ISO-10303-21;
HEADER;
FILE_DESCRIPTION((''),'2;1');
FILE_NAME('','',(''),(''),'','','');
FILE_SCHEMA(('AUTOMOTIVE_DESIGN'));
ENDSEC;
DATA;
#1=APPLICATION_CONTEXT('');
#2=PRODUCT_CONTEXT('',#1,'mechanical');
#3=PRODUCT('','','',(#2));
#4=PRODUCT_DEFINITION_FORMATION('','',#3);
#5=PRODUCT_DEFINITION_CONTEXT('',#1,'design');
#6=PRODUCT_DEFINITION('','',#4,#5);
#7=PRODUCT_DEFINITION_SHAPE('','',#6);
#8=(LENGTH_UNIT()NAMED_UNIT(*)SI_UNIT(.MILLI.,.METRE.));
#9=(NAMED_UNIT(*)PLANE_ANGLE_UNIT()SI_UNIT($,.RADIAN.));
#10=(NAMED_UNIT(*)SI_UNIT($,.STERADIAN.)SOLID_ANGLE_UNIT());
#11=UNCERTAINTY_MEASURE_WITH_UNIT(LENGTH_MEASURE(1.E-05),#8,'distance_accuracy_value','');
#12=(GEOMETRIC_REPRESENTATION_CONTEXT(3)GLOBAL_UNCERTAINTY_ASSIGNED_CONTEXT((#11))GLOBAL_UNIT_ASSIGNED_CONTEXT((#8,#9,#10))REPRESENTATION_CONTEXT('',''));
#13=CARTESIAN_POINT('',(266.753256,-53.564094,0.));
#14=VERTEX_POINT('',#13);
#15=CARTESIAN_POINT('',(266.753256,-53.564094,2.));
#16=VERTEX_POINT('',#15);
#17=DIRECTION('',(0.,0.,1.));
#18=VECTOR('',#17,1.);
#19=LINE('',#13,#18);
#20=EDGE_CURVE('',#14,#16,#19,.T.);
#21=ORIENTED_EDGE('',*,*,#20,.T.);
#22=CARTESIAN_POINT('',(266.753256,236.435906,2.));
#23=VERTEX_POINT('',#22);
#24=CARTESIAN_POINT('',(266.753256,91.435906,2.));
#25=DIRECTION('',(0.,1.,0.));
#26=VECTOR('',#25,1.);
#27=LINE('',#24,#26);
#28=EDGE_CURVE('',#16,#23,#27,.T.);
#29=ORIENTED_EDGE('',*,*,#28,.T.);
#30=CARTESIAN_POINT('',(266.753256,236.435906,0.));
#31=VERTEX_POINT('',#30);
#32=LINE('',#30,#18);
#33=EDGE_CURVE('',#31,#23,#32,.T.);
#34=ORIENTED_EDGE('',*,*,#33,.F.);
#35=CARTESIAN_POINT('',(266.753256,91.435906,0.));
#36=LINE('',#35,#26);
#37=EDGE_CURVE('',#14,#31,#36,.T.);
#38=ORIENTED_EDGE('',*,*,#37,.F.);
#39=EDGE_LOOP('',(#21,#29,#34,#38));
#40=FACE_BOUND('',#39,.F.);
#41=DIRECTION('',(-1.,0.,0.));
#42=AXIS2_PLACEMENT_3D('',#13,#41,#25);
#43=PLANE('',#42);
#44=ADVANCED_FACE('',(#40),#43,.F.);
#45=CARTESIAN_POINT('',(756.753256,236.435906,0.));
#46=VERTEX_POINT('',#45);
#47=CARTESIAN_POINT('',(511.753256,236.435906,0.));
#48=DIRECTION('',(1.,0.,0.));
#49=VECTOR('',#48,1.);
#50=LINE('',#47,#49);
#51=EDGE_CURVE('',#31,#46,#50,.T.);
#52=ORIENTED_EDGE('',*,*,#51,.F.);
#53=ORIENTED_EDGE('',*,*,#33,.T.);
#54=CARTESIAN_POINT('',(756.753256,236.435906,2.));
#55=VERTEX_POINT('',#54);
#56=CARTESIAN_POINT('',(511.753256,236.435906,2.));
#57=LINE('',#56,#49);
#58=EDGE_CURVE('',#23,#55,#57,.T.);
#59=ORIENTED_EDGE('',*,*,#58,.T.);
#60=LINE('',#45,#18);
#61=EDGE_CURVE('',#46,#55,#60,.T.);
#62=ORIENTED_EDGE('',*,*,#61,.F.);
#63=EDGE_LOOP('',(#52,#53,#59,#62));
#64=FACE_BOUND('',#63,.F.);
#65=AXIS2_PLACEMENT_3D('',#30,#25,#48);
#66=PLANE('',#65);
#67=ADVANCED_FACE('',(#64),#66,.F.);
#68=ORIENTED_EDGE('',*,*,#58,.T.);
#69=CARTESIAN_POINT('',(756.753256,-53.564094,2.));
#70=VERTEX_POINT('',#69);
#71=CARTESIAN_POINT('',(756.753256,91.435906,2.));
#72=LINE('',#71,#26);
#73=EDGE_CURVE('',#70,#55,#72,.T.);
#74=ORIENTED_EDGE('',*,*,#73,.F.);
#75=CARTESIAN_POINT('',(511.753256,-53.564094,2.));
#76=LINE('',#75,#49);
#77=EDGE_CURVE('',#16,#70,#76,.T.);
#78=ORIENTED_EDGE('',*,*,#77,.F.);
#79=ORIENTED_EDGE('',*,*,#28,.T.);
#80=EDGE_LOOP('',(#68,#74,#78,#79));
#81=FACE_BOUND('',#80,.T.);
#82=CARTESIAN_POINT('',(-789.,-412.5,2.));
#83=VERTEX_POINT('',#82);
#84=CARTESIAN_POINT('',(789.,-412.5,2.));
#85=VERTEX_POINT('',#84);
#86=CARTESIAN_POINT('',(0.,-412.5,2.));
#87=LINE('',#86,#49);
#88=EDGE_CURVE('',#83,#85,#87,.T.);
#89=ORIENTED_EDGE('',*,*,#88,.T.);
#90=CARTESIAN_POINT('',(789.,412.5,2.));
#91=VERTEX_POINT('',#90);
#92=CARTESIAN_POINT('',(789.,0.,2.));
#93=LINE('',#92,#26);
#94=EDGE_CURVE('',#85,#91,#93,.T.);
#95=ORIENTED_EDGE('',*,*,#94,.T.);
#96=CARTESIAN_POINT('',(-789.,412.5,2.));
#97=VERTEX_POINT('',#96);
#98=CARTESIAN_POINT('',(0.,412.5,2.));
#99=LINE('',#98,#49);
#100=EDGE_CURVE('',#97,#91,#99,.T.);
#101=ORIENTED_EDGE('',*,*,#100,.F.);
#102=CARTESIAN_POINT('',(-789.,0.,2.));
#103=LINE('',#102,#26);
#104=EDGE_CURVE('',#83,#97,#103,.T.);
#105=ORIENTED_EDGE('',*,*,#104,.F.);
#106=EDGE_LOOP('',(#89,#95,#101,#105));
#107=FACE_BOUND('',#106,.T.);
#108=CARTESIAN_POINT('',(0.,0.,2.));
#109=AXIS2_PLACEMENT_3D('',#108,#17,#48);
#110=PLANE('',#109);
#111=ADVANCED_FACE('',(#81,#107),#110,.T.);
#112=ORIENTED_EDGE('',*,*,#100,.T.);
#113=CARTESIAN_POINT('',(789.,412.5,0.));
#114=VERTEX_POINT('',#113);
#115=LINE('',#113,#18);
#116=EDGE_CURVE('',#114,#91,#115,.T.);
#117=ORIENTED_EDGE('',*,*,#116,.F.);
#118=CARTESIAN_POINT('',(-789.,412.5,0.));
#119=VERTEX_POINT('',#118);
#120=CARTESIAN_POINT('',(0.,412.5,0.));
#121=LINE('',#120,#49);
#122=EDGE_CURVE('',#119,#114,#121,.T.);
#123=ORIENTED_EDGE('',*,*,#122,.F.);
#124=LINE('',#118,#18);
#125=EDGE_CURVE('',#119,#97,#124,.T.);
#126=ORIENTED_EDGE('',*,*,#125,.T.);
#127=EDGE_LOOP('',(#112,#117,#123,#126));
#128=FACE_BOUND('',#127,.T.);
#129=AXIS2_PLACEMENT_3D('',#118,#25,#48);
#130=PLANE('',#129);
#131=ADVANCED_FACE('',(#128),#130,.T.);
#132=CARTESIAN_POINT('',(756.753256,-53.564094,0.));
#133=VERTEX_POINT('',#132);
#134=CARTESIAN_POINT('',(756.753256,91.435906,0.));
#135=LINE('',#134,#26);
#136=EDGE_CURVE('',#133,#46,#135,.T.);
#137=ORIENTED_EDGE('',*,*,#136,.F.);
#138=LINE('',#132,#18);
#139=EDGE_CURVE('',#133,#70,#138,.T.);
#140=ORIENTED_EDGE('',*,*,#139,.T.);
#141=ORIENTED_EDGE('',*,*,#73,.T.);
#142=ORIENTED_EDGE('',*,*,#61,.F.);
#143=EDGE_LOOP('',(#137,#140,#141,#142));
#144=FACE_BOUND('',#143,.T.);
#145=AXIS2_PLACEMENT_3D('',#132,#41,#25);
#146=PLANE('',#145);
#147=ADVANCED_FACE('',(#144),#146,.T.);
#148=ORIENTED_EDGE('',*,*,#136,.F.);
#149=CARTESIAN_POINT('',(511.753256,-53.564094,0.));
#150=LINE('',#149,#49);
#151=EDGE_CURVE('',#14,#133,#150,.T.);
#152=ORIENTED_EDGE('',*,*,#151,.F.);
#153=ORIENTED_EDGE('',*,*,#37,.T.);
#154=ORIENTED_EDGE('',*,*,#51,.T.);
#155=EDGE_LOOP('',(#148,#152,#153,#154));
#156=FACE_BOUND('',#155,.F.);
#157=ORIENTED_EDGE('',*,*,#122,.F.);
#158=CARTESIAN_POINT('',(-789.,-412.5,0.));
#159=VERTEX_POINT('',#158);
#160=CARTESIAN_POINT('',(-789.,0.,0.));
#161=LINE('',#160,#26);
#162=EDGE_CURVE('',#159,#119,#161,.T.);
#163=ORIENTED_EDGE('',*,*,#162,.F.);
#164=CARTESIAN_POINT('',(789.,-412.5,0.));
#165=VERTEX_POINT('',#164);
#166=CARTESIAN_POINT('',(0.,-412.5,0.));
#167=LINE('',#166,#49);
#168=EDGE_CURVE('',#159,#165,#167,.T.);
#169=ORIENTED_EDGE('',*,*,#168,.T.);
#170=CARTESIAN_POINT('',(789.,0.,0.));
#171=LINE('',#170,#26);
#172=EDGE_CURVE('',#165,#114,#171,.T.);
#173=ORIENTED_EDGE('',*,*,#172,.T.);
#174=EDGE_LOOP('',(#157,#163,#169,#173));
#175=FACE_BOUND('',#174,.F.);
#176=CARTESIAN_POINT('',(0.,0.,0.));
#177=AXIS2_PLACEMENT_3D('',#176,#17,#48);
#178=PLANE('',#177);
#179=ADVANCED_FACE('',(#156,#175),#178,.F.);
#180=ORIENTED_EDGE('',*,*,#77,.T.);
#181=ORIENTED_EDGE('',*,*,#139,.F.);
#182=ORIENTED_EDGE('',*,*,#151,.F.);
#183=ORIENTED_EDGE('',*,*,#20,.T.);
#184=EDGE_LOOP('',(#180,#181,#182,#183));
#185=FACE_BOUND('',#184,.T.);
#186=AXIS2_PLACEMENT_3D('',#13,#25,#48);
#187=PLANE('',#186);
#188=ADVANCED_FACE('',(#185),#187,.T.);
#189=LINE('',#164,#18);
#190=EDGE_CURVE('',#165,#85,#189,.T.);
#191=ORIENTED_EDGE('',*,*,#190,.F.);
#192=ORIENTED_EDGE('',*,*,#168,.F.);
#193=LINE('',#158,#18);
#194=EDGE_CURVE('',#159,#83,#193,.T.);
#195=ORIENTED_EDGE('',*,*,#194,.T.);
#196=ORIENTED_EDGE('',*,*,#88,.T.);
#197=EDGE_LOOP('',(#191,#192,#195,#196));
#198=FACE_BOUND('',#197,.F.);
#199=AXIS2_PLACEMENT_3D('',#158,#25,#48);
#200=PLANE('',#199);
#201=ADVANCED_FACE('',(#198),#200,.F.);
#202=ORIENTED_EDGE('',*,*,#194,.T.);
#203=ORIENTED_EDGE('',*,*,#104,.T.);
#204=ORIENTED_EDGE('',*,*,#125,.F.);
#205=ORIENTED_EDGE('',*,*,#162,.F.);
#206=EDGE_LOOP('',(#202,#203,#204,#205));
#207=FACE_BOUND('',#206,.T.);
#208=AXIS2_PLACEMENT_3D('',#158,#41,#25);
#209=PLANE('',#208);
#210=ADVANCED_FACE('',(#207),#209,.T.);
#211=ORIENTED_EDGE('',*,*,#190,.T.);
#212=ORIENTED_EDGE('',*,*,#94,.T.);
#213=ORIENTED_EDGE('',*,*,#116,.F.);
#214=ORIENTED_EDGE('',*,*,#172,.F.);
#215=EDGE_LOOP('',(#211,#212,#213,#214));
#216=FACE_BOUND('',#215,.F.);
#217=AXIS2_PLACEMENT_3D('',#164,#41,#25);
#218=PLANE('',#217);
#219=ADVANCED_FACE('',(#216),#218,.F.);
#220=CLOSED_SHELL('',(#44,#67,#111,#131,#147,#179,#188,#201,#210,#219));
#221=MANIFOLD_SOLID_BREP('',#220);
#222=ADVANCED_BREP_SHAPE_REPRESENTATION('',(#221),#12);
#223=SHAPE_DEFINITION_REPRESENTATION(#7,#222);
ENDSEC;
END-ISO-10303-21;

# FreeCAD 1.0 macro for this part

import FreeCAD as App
import Part
import Sketcher

V = App.Vector


def add_polygon(sketch, points):
    """Adds a closed chain of lines whose ends are joined by coincident constraints."""
    first, n = sketch.GeometryCount, len(points)
    for a, b in zip(points, points[1:] + points[:1]):
        sketch.addGeometry(Part.LineSegment(App.Vector(*a, 0), App.Vector(*b, 0)), False)
    for i in range(n):
        sketch.addConstraint(Sketcher.Constraint("Coincident", first + i, 2, first + (i + 1) % n, 1))

doc = App.newDocument("Part")
params = doc.addObject("Spreadsheet::Sheet", "Params")
for row, (alias, value) in enumerate([
    ("sketch1_width", "1578 mm"),
    ("sketch1_width2", "490 mm"),
    ("sketch1_height", "825 mm"),
    ("sketch1_height2", "290 mm"),
    ("pad1_length", "2 mm"),
], start=1):
    params.set(f"A{row}", alias)
    params.set(f"B{row}", "=" + value)
    params.setAlias(f"B{row}", alias)

body = doc.addObject("PartDesign::Body", "Body")

# Sketch on XY plane
sketch1 = body.newObject("Sketcher::SketchObject", "Sketch")
sketch1.AttachmentSupport = (doc.getObject("XY_Plane"), [""])
sketch1.MapMode = "FlatFace"
add_polygon(sketch1, [(-789, 412), (-789, -412), (789, -412), (789, 412)])  # lines 0-3
add_polygon(sketch1, [(757, -54), (267, -54), (267, 236), (757, 236)])  # lines 4-7
sketch1.addConstraint([
    Sketcher.Constraint("Vertical", 0),
    Sketcher.Constraint("Horizontal", 1),
    Sketcher.Constraint("Vertical", 2),
    Sketcher.Constraint("Horizontal", 3),
    Sketcher.Constraint("Horizontal", 4),
    Sketcher.Constraint("Vertical", 5),
    Sketcher.Constraint("Horizontal", 6),
    Sketcher.Constraint("Vertical", 7),
    Sketcher.Constraint("Symmetric", 0, 2, 2, 2, -1, 1),
    Sketcher.Constraint("DistanceX", 1, 1, 1, 2, 1578.0),
    Sketcher.Constraint("DistanceX", 4, 2, 4, 1, 490.0),
    Sketcher.Constraint("DistanceY", 0, 2, 0, 1, 825.0),
    Sketcher.Constraint("DistanceY", 5, 1, 5, 2, 290.0),
    Sketcher.Constraint("DistanceX", -1, 1, 4, 2, 266.753256),
    Sketcher.Constraint("DistanceY", 4, 2, -1, 1, 53.564094),
])
sketch1.setExpression("Constraints[17]", "Params.sketch1_width")
sketch1.setExpression("Constraints[18]", "Params.sketch1_width2")
sketch1.setExpression("Constraints[19]", "Params.sketch1_height")
sketch1.setExpression("Constraints[20]", "Params.sketch1_height2")
pad1 = body.newObject("PartDesign::Pad", "Pad")
pad1.Profile = sketch1
pad1.setExpression("Length", "Params.pad1_length")

doc.recompute()
